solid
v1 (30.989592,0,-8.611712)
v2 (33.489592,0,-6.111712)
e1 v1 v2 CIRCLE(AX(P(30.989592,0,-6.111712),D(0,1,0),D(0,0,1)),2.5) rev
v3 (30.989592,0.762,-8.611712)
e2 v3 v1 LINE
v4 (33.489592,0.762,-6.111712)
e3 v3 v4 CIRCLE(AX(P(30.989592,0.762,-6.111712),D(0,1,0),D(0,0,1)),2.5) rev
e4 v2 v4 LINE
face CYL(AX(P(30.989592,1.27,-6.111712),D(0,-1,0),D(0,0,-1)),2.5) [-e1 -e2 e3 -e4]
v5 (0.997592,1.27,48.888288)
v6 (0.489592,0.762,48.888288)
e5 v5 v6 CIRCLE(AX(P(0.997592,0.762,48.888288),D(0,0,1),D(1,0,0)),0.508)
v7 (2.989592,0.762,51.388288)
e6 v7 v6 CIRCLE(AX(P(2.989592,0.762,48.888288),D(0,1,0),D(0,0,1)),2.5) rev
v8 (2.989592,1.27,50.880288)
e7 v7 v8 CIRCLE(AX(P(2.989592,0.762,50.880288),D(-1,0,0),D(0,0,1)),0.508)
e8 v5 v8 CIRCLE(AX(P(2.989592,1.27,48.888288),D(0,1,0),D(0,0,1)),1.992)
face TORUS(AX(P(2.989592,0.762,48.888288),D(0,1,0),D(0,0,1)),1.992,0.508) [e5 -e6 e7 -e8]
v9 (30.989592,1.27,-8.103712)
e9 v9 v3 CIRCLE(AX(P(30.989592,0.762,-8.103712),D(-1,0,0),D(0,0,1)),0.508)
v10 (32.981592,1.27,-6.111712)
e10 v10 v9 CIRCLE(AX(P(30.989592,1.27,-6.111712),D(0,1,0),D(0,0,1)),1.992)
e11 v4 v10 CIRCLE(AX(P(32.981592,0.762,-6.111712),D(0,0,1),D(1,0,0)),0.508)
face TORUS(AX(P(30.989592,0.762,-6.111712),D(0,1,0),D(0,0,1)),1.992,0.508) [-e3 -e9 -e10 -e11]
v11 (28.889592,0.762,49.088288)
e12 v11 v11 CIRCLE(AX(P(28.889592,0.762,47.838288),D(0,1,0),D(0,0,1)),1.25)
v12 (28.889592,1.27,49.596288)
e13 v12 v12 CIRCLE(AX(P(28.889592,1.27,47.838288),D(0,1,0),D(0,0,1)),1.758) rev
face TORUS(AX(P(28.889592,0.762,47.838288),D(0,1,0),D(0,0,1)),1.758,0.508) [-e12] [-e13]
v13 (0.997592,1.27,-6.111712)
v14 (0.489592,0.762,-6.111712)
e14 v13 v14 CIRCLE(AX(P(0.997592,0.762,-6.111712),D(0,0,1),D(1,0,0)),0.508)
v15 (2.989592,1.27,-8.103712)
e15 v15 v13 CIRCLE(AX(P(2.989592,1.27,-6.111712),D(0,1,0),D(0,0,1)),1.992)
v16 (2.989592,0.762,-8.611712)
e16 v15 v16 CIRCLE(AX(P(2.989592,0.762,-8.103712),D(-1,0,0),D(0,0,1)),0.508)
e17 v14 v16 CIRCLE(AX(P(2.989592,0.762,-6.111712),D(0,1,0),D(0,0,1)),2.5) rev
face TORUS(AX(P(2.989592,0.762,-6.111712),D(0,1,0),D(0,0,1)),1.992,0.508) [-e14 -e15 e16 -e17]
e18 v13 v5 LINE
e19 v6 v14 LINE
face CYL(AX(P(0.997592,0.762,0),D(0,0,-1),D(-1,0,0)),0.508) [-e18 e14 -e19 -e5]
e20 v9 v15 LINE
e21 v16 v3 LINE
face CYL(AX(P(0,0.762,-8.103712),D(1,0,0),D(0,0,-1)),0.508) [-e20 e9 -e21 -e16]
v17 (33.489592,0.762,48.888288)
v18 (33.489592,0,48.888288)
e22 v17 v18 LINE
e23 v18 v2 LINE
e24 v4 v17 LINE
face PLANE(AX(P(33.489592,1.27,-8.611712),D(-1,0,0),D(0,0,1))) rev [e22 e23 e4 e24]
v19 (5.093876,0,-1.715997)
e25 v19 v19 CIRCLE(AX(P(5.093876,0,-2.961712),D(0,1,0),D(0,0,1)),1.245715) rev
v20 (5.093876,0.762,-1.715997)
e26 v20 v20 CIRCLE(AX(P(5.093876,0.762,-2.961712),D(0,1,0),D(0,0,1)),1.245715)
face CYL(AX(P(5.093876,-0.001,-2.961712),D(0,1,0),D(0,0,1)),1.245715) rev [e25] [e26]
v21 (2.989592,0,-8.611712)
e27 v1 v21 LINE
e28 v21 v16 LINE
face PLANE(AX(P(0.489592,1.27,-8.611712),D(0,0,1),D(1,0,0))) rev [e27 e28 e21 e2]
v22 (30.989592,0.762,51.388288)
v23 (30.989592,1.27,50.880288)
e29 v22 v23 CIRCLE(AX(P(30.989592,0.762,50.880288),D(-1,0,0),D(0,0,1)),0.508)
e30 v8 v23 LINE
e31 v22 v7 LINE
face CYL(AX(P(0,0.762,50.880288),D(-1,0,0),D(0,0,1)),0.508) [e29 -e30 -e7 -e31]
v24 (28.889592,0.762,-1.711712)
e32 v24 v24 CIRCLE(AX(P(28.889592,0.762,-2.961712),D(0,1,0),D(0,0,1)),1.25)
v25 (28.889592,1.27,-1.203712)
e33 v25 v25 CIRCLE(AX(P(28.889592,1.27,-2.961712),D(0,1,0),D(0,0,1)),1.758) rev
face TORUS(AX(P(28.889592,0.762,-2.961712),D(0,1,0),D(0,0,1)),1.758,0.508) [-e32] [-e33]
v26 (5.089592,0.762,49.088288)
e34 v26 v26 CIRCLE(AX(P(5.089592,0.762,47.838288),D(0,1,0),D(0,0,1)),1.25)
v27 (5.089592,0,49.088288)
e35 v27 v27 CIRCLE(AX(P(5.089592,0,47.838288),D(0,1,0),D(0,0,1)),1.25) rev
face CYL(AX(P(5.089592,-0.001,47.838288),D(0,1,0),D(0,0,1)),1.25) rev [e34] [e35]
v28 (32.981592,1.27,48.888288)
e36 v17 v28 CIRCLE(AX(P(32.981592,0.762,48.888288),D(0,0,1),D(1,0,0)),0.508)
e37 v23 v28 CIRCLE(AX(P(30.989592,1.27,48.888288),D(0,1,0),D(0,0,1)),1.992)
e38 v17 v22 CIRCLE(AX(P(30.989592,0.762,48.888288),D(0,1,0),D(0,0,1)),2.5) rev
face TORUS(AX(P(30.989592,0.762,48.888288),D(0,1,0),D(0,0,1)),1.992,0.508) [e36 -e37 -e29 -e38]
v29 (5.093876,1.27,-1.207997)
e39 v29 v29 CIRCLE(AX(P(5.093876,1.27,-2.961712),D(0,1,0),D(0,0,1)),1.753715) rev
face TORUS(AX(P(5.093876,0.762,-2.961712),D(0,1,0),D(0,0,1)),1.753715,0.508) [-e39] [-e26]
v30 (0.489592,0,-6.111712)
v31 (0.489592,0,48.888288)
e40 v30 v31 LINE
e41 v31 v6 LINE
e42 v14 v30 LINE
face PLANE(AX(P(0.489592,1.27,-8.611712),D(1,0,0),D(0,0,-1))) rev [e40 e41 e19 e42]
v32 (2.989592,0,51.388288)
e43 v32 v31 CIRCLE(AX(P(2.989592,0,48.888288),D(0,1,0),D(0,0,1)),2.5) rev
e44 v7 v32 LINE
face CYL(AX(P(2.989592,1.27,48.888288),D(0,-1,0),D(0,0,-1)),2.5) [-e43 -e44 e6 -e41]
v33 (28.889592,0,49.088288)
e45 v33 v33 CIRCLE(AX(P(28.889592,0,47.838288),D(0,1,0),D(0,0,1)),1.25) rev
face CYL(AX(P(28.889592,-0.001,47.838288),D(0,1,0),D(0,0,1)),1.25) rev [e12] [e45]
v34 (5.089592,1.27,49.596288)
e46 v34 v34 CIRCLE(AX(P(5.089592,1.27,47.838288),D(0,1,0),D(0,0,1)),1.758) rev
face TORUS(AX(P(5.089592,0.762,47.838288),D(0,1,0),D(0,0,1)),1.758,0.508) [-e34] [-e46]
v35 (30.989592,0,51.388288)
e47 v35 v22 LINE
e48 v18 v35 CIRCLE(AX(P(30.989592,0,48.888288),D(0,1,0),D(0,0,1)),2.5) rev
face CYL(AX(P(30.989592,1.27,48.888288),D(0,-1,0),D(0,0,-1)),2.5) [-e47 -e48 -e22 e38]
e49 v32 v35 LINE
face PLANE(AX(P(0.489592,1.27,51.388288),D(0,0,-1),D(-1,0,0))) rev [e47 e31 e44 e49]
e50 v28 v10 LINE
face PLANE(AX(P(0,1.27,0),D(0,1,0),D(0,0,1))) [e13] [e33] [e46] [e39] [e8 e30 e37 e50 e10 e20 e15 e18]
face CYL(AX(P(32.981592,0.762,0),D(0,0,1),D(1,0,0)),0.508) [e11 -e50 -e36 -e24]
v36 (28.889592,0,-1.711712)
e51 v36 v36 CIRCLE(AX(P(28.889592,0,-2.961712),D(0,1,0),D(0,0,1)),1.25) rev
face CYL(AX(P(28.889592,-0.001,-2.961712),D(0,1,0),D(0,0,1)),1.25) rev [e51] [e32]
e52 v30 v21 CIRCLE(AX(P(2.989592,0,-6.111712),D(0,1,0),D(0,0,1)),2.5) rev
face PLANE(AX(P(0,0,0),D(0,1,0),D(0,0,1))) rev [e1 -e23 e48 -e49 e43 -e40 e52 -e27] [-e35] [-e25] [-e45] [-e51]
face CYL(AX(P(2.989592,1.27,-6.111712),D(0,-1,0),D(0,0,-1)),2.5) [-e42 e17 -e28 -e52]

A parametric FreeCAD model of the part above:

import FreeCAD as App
import Part
import Sketcher

V = App.Vector
Q = App.Units.Quantity


def edges_at(feature, points):
    """Names of the edges that pass closest to the given points."""
    edges = feature.Shape.Edges
    near = lambda p: min(range(len(edges)), key=lambda i: edges[i].distToShape(Part.Vertex(*p))[0])
    return sorted({f"Edge{near(p) + 1}" for p in points})

doc = App.newDocument("Part")
body = doc.addObject("PartDesign::Body", "Body")

# Sketch on XZ plane
sketch1 = body.newObject("Sketcher::SketchObject", "Sketch")
sketch1.AttachmentSupport = (doc.getObject("XZ_Plane"), [""])
sketch1.MapMode = "FlatFace"
sketch1.addGeometry(Part.LineSegment(V(0.489592, -8.611712, 0), V(0.489592, 51.388288, 0)), False)
sketch1.addGeometry(Part.LineSegment(V(0.489592, 51.388288, 0), V(33.489592, 51.388288, 0)), False)
sketch1.addGeometry(Part.LineSegment(V(33.489592, 51.388288, 0), V(33.489592, -8.611712, 0)), False)
sketch1.addGeometry(Part.LineSegment(V(33.489592, -8.611712, 0), V(0.489592, -8.611712, 0)), False)
sketch1.addConstraint(Sketcher.Constraint("Coincident", 0, 2, 1, 1))
sketch1.addConstraint(Sketcher.Constraint("Coincident", 1, 2, 2, 1))
sketch1.addConstraint(Sketcher.Constraint("Coincident", 2, 2, 3, 1))
sketch1.addConstraint(Sketcher.Constraint("Coincident", 3, 2, 0, 1))
sketch1.addConstraint(Sketcher.Constraint("Vertical", 0))
sketch1.addConstraint(Sketcher.Constraint("Horizontal", 1))
sketch1.addConstraint(Sketcher.Constraint("Vertical", 2))
sketch1.addConstraint(Sketcher.Constraint("Horizontal", 3))
sketch1.addConstraint(Sketcher.Constraint("DistanceX", 1, 1, 1, 2, Q("33 mm")))
sketch1.addConstraint(Sketcher.Constraint("DistanceY", 0, 1, 0, 2, Q("60 mm")))
sketch1.addConstraint(Sketcher.Constraint("DistanceX", -1, 1, 0, 2, Q("0.489592 mm")))
sketch1.addConstraint(Sketcher.Constraint("DistanceY", -1, 1, 0, 2, Q("51.388288 mm")))
pad1 = body.newObject("PartDesign::Pad", "Pad")
pad1.Profile = sketch1
pad1.Length = 1.27
pad1.Reversed = True

# Sketch on XZ plane
sketch2 = body.newObject("Sketcher::SketchObject", "Sketch001")
sketch2.AttachmentSupport = (doc.getObject("XZ_Plane"), [""])
sketch2.MapMode = "FlatFace"
sketch2.AttachmentOffset = App.Placement(V(0, 0, -1.27), App.Rotation())
sketch2.addGeometry(Part.Circle(V(5.093876, -2.961712, 0), V(0, 0, 1), 1.245715), False)
sketch2.addConstraint(Sketcher.Constraint("Diameter", 0, Q("2.49143 mm")))
sketch2.addConstraint(Sketcher.Constraint("DistanceY", 0, 3, -1, 1, Q("2.961712 mm")))
sketch2.addConstraint(Sketcher.Constraint("DistanceX", -1, 1, 0, 3, Q("5.093876 mm")))
pocket1 = body.newObject("PartDesign::Pocket", "Pocket")
pocket1.Profile = sketch2
pocket1.Type = "UpToFirst"
pocket1.Reversed = True

# Sketch on XZ plane
sketch3 = body.newObject("Sketcher::SketchObject", "Sketch002")
sketch3.AttachmentSupport = (doc.getObject("XZ_Plane"), [""])
sketch3.MapMode = "FlatFace"
sketch3.AttachmentOffset = App.Placement(V(0, 0, -1.27), App.Rotation())
sketch3.addGeometry(Part.Circle(V(28.889592, -2.961712, 0), V(0, 0, 1), 1.25), False)
sketch3.addConstraint(Sketcher.Constraint("Diameter", 0, Q("2.5 mm")))
sketch3.addConstraint(Sketcher.Constraint("DistanceX", -1, 1, 0, 3, Q("28.889592 mm")))
sketch3.addConstraint(Sketcher.Constraint("DistanceY", 0, 3, -1, 1, Q("2.961712 mm")))
pocket2 = body.newObject("PartDesign::Pocket", "Pocket001")
pocket2.Profile = sketch3
pocket2.Type = "UpToFirst"
pocket2.Reversed = True

# Sketch on XZ plane
sketch4 = body.newObject("Sketcher::SketchObject", "Sketch003")
sketch4.AttachmentSupport = (doc.getObject("XZ_Plane"), [""])
sketch4.MapMode = "FlatFace"
sketch4.AttachmentOffset = App.Placement(V(0, 0, -1.27), App.Rotation())
sketch4.addGeometry(Part.Circle(V(5.089592, 47.838288, 0), V(0, 0, 1), 1.25), False)
sketch4.addConstraint(Sketcher.Constraint("Diameter", 0, Q("2.5 mm")))
sketch4.addConstraint(Sketcher.Constraint("DistanceX", -1, 1, 0, 3, Q("5.089592 mm")))
sketch4.addConstraint(Sketcher.Constraint("DistanceY", -1, 1, 0, 3, Q("47.838288 mm")))
pocket3 = body.newObject("PartDesign::Pocket", "Pocket002")
pocket3.Profile = sketch4
pocket3.Type = "UpToFirst"
pocket3.Reversed = True

# Sketch on XZ plane
sketch5 = body.newObject("Sketcher::SketchObject", "Sketch004")
sketch5.AttachmentSupport = (doc.getObject("XZ_Plane"), [""])
sketch5.MapMode = "FlatFace"
sketch5.AttachmentOffset = App.Placement(V(0, 0, -1.27), App.Rotation())
sketch5.addGeometry(Part.Circle(V(28.889592, 47.838288, 0), V(0, 0, 1), 1.25), False)
sketch5.addConstraint(Sketcher.Constraint("Diameter", 0, Q("2.5 mm")))
sketch5.addConstraint(Sketcher.Constraint("DistanceX", -1, 1, 0, 3, Q("28.889592 mm")))
sketch5.addConstraint(Sketcher.Constraint("DistanceY", -1, 1, 0, 3, Q("47.838288 mm")))
pocket4 = body.newObject("PartDesign::Pocket", "Pocket003")
pocket4.Profile = sketch5
pocket4.Type = "UpToFirst"
pocket4.Reversed = True
doc.recompute()

fillet = body.newObject("PartDesign::Fillet", "Fillet")
fillet.Base = (pocket4, edges_at(pocket4, [
    (0.49, 0.635, -8.612),
    (33.49, 0.635, -8.612),
    (33.49, 0.635, 51.388),
    (0.49, 0.635, 51.388),
]))
fillet.Radius = 2.5
doc.recompute()

fillet2 = body.newObject("PartDesign::Fillet", "Fillet001")
fillet2.Base = (fillet, edges_at(fillet, [
    (27.64, 1.27, -2.962),
    (3.84, 1.27, 47.838),
    (27.64, 1.27, 47.838),
    (3.848, 1.27, -2.962),
    (33.49, 1.27, 21.388),
    (16.99, 1.27, 51.388),
    (0.49, 1.27, 21.388),
    (16.99, 1.27, -8.612),
    (32.757, 1.27, -7.879),
    (1.222, 1.27, -7.879),
    (1.222, 1.27, 50.656),
    (32.757, 1.27, 50.656),
]))
fillet2.Radius = 0.508

doc.recompute()
